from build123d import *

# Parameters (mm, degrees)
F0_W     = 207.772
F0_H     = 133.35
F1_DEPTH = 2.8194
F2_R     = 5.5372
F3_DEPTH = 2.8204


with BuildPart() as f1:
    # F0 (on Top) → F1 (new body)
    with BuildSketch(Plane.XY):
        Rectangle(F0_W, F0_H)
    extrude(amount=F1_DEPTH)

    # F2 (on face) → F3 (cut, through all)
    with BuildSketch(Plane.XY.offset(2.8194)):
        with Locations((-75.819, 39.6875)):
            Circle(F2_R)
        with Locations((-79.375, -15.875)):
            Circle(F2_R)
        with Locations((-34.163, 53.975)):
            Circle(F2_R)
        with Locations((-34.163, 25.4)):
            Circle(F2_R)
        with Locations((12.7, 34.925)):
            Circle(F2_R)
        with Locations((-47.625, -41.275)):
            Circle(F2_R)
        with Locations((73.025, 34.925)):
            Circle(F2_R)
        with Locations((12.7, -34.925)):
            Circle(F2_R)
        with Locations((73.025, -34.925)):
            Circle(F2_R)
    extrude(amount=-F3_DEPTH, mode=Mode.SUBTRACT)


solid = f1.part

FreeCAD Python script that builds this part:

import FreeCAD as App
import Part
import Sketcher
from FreeCAD import Vector
Q = App.Units.Quantity

doc = App.newDocument("Part")
params = doc.addObject("Spreadsheet::Sheet", "Params")
for row, (alias, value) in enumerate([
    ("sketch1_width", "8.18 in"),
    ("sketch1_height", "5.25 in"),
    ("pad1_length", "0.111 in"),
    ("sketch2_diameter", "0.436 in"),
], start=1):
    params.set(f"A{row}", alias)
    params.set(f"B{row}", "=" + value)
    params.setAlias(f"B{row}", alias)

body = doc.addObject("PartDesign::Body", "Body")

# Sketch on XY plane
sketch1 = doc.addObject("Sketcher::SketchObject", "Sketch")
body.addObject(sketch1)
sketch1.AttachmentSupport = (doc.XY_Plane, [""])
sketch1.MapMode = "FlatFace"
sketch1.addGeometry(Part.LineSegment(Vector(-104, 67, 0), Vector(-104, -67, 0)), False)
sketch1.addGeometry(Part.LineSegment(Vector(-104, -67, 0), Vector(104, -67, 0)), False)
sketch1.addGeometry(Part.LineSegment(Vector(104, -67, 0), Vector(104, 67, 0)), False)
sketch1.addGeometry(Part.LineSegment(Vector(104, 67, 0), Vector(-104, 67, 0)), False)
sketch1.addConstraint(Sketcher.Constraint("Coincident", 0, 2, 1, 1))
sketch1.addConstraint(Sketcher.Constraint("Coincident", 1, 2, 2, 1))
sketch1.addConstraint(Sketcher.Constraint("Coincident", 2, 2, 3, 1))
sketch1.addConstraint(Sketcher.Constraint("Coincident", 3, 2, 0, 1))
sketch1.addConstraint(Sketcher.Constraint("Vertical", 0))
sketch1.addConstraint(Sketcher.Constraint("Horizontal", 1))
sketch1.addConstraint(Sketcher.Constraint("Vertical", 2))
sketch1.addConstraint(Sketcher.Constraint("Horizontal", 3))
sketch1.addConstraint(Sketcher.Constraint("Symmetric", 0, 2, 2, 2, -1, 1))
sketch1.addConstraint(Sketcher.Constraint("DistanceX", 1, 1, 1, 2, Q("8.18 in")))
sketch1.addConstraint(Sketcher.Constraint("DistanceY", 0, 2, 0, 1, Q("5.25 in")))
sketch1.setExpression("Constraints[9]", "Params.sketch1_width")
sketch1.setExpression("Constraints[10]", "Params.sketch1_height")
pad1 = doc.addObject("PartDesign::Pad", "Pad")
body.addObject(pad1)
pad1.Profile = sketch1
pad1.setExpression("Length", "Params.pad1_length")

# Sketch on XY plane
sketch2 = doc.addObject("Sketcher::SketchObject", "Sketch001")
body.addObject(sketch2)
sketch2.AttachmentSupport = (doc.XY_Plane, [""])
sketch2.MapMode = "FlatFace"
sketch2.AttachmentOffset = App.Placement(Vector(0, 0, 0.111 * 25.4), App.Rotation())
sketch2.addGeometry(Part.Circle(Vector(-76, 40, 0), Vector(0, 0, 1), 6), False)
sketch2.addGeometry(Part.Circle(Vector(-79, -16, 0), Vector(0, 0, 1), 6), False)
sketch2.addGeometry(Part.Circle(Vector(-34, 54, 0), Vector(0, 0, 1), 6), False)
sketch2.addGeometry(Part.Circle(Vector(-34, 25, 0), Vector(0, 0, 1), 6), False)
sketch2.addGeometry(Part.Circle(Vector(13, 35, 0), Vector(0, 0, 1), 6), False)
sketch2.addGeometry(Part.Circle(Vector(-48, -41, 0), Vector(0, 0, 1), 6), False)
sketch2.addGeometry(Part.Circle(Vector(73, 35, 0), Vector(0, 0, 1), 6), False)
sketch2.addGeometry(Part.Circle(Vector(13, -35, 0), Vector(0, 0, 1), 6), False)
sketch2.addGeometry(Part.Circle(Vector(73, -35, 0), Vector(0, 0, 1), 6), False)
sketch2.addConstraint(Sketcher.Constraint("Equal", 0, 1))
sketch2.addConstraint(Sketcher.Constraint("Equal", 1, 2))
sketch2.addConstraint(Sketcher.Constraint("Equal", 2, 3))
sketch2.addConstraint(Sketcher.Constraint("Equal", 3, 4))
sketch2.addConstraint(Sketcher.Constraint("Equal", 4, 5))
sketch2.addConstraint(Sketcher.Constraint("Equal", 5, 6))
sketch2.addConstraint(Sketcher.Constraint("Equal", 6, 7))
sketch2.addConstraint(Sketcher.Constraint("Equal", 7, 8))
sketch2.addConstraint(Sketcher.Constraint("Symmetric", 4, 3, 7, 3, -1))
sketch2.addConstraint(Sketcher.Constraint("Symmetric", 6, 3, 8, 3, -1))
sketch2.addConstraint(Sketcher.Constraint("Horizontal", 4, 3, 6, 3))
sketch2.addConstraint(Sketcher.Constraint("Vertical", 2, 3, 3, 3))
sketch2.addConstraint(Sketcher.Constraint("Diameter", 0, Q("0.436 in")))
sketch2.addConstraint(Sketcher.Constraint("DistanceY", -1, 1, 3, 3, Q("1 in")))
sketch2.addConstraint(Sketcher.Constraint("DistanceY", 1, 3, 4, 3, Q("2 in")))
sketch2.addConstraint(Sketcher.Constraint("DistanceY", 5, 3, 1, 3, Q("1 in")))
sketch2.addConstraint(Sketcher.Constraint("DistanceX", -1, 1, 4, 3, Q("0.5 in")))
sketch2.addConstraint(Sketcher.Constraint("DistanceX", 1, 3, 0, 3, Q("0.14 in")))
sketch2.addConstraint(Sketcher.Constraint("DistanceX", 0, 3, 2, 3, Q("1.64 in")))
sketch2.addConstraint(Sketcher.Constraint("DistanceY", 1, 3, 2, 3, Q("2.75 in")))
sketch2.addConstraint(Sketcher.Constraint("DistanceX", 1, 3, 5, 3, Q("1.25 in")))
sketch2.addConstraint(Sketcher.Constraint("DistanceX", 3, 3, 6, 3, Q("4.22 in")))
sketch2.addConstraint(Sketcher.Constraint("DistanceY", 5, 3, 7, 3, Q("0.25 in")))
sketch2.addConstraint(Sketcher.Constraint("DistanceX", 0, 3, -1, 1, Q("2.985 in")))
sketch2.addConstraint(Sketcher.Constraint("DistanceY", -1, 1, 0, 3, Q("1.5625 in")))
sketch2.setExpression("Constraints[12]", "Params.sketch2_diameter")
pocket1 = doc.addObject("PartDesign::Pocket", "Pocket")
body.addObject(pocket1)
pocket1.Profile = sketch2
pocket1.Type = "ThroughAll"

doc.recompute()
